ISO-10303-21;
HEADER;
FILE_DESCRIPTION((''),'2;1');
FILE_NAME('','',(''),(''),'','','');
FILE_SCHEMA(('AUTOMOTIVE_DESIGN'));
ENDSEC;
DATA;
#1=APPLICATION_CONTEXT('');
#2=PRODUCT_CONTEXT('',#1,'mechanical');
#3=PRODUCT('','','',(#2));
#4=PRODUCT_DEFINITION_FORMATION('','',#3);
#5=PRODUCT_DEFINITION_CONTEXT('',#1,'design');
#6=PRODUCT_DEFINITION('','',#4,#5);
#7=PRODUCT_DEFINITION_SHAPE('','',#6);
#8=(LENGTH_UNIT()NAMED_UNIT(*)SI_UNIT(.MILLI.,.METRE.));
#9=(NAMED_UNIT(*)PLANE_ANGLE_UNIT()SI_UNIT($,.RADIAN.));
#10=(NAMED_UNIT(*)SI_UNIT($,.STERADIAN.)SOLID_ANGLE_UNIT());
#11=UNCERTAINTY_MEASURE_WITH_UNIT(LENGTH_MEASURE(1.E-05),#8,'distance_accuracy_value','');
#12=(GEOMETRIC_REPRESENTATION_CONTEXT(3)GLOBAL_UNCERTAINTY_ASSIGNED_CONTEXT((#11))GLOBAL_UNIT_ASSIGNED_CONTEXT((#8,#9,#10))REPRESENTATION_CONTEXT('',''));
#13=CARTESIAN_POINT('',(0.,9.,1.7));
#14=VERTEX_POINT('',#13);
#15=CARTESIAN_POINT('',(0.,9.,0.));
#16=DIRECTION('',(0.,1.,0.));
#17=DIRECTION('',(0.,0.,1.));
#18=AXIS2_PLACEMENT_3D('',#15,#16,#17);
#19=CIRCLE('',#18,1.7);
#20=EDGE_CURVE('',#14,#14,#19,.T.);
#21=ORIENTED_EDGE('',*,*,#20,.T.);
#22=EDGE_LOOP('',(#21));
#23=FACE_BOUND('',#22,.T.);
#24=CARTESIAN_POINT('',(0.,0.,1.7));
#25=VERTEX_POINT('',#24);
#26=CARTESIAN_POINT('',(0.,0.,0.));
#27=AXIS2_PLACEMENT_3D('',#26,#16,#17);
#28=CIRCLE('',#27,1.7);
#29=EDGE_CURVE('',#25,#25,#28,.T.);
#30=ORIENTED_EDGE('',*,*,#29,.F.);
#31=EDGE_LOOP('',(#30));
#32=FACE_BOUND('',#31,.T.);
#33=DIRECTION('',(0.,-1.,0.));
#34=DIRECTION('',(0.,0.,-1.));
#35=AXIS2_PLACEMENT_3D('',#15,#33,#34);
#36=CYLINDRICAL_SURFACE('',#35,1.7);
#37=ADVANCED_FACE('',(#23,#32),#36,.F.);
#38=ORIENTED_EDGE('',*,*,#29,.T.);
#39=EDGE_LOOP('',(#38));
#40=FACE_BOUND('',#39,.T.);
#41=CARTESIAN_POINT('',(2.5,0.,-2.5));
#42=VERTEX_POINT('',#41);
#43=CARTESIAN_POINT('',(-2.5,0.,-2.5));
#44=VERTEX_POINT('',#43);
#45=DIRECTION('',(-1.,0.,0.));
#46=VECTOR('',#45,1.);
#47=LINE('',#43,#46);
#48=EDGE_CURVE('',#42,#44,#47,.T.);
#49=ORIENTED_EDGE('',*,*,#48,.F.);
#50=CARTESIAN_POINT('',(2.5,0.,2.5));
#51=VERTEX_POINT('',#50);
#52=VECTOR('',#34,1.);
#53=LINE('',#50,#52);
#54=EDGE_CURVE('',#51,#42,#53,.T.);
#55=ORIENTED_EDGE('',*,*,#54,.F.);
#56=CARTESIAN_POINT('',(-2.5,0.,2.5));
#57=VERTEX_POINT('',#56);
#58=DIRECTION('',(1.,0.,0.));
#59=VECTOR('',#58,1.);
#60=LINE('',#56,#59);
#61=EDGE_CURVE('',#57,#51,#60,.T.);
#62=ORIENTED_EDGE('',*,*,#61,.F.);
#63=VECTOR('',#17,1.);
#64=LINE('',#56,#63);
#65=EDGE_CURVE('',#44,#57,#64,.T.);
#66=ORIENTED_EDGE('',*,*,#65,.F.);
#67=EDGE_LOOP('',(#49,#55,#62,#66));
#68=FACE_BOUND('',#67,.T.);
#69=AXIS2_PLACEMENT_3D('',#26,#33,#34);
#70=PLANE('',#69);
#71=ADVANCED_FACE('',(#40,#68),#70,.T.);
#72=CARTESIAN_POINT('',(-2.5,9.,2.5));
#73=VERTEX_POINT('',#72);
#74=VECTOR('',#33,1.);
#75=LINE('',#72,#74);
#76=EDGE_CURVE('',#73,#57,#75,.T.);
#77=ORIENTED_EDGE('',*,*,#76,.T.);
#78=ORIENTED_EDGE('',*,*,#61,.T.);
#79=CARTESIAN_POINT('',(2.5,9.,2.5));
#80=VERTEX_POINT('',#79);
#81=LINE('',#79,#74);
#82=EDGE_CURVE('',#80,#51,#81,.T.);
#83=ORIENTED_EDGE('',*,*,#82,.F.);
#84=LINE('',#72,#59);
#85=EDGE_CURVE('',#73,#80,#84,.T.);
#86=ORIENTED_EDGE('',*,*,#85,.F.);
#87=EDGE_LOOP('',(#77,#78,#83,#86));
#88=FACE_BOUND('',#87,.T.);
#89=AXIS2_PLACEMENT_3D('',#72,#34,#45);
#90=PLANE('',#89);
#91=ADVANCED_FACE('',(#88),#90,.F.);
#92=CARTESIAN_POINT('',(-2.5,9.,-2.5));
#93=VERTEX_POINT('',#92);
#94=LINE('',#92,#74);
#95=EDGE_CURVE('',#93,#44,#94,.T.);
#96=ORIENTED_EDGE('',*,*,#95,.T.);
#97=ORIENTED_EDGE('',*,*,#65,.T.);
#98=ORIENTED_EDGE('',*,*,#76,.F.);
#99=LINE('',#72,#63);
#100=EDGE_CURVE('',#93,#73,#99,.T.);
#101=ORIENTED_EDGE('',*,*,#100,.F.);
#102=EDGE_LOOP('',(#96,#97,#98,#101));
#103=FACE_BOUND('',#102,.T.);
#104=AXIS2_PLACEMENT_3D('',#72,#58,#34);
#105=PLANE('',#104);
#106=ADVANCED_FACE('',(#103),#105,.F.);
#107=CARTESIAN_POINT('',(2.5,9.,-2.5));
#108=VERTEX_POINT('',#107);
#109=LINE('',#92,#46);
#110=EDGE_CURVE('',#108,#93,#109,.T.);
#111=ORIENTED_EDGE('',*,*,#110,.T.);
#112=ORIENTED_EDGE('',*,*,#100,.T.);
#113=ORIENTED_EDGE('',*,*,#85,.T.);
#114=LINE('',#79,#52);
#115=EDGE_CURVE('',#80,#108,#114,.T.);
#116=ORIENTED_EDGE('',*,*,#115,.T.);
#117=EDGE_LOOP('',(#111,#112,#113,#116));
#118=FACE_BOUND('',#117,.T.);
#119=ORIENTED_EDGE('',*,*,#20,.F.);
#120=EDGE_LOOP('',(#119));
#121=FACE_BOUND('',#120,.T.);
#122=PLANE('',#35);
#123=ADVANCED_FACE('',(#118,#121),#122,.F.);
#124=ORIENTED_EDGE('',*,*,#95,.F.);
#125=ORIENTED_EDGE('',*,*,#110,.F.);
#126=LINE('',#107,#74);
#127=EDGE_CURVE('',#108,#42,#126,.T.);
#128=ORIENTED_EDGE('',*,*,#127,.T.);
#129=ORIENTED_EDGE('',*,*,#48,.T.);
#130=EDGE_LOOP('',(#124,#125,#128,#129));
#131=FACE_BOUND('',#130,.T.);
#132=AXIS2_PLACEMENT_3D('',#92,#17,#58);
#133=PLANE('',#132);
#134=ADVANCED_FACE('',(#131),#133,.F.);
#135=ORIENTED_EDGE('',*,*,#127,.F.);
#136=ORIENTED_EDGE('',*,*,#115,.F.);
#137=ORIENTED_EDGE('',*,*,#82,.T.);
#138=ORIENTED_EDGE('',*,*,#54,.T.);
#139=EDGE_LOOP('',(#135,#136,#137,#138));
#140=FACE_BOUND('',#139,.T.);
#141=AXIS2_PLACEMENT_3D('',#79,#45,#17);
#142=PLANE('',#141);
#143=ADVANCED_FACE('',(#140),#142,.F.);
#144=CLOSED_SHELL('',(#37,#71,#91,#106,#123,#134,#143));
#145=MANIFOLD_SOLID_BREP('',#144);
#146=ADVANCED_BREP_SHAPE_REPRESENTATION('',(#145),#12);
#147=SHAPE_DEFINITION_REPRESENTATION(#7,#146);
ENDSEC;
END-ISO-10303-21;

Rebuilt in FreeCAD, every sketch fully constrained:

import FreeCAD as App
import Part
import Sketcher

V = App.Vector
Q = App.Units.Quantity


def add_polygon(sketch, points):
    """Adds a closed chain of lines whose ends are joined by coincident constraints."""
    first, n = sketch.GeometryCount, len(points)
    for a, b in zip(points, points[1:] + points[:1]):
        sketch.addGeometry(Part.LineSegment(App.Vector(*a, 0), App.Vector(*b, 0)), False)
    for i in range(n):
        sketch.addConstraint(Sketcher.Constraint("Coincident", first + i, 2, first + (i + 1) % n, 1))

doc = App.newDocument("Part")
body = doc.addObject("PartDesign::Body", "Body")

sketch1 = body.newObject("Sketcher::SketchObject", "Sketch")
sketch1.AttachmentSupport = (doc.getObject("XZ_Plane"), [""])
sketch1.MapMode = "FlatFace"
add_polygon(sketch1, [(-2.5, -2.5), (-2.5, 2.5), (2.5, 2.5), (2.5, -2.5)])
sketch1.addGeometry(Part.Circle(V(0, 0, 0), V(0, 0, 1), 1.7), False)
sketch1.addConstraint([
    Sketcher.Constraint("Vertical", 0),
    Sketcher.Constraint("Horizontal", 1),
    Sketcher.Constraint("Vertical", 2),
    Sketcher.Constraint("Horizontal", 3),
    Sketcher.Constraint("Coincident", 4, 3, -1, 1),
    Sketcher.Constraint("Symmetric", 0, 2, 2, 2, -1, 1),
    Sketcher.Constraint("Equal", 3, 0),
    Sketcher.Constraint("Diameter", 4, Q("3.4 mm")),
    Sketcher.Constraint("DistanceX", 1, 1, 1, 2, Q("5 mm")),
])
pad1 = body.newObject("PartDesign::Pad", "Pad")
pad1.Profile = sketch1
pad1.Length = 9
pad1.Reversed = True

doc.recompute()
